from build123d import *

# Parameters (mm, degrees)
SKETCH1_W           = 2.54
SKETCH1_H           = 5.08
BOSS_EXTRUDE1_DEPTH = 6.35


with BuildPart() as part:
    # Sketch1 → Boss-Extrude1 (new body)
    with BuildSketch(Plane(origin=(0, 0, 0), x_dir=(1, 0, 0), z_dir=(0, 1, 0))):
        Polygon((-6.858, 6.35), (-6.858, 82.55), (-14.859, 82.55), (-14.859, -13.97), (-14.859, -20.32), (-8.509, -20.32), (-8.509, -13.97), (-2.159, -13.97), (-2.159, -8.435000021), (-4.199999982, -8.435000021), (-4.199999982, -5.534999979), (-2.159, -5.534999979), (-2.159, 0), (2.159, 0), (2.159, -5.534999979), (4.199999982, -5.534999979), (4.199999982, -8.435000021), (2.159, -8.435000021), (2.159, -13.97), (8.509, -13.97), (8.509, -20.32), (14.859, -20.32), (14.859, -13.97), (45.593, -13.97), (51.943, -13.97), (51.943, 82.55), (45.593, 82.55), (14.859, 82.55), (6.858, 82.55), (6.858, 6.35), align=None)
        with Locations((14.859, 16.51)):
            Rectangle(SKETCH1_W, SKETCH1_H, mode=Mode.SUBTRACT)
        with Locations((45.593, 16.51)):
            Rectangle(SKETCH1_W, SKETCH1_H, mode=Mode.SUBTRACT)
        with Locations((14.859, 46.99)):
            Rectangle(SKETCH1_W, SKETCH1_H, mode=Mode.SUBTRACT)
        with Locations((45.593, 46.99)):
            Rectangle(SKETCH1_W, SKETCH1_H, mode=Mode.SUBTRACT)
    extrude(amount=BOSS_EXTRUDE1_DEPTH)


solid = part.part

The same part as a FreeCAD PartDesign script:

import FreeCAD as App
import Part
import Sketcher
Q = App.Units.Quantity

doc = App.newDocument("Part")
params = doc.addObject("Spreadsheet::Sheet", "Params")
for row, (alias, value) in enumerate([
    ("sketch1_height", "3 in"),
    ("sketch1_width", "0.1 in"),
    ("sketch1_height2", "3.8 in"),
    ("sketch1_height3", "0.2 in"),
    ("sketch1_width2", "0.25 in"),
    ("pad1_length", "0.25 in"),
], start=1):
    params.set(f"A{row}", alias)
    params.set(f"B{row}", "=" + value)
    params.setAlias(f"B{row}", alias)

body = doc.addObject("PartDesign::Body", "Body")

# Sketch on XZ plane
sketch1 = body.newObject("Sketcher::SketchObject", "Sketch")
sketch1.AttachmentSupport = (doc.getObject("XZ_Plane"), [""])
sketch1.MapMode = "FlatFace"
sketch1.addGeometry([
    Part.LineSegment(App.Vector(-6.858, -6.35, 0), App.Vector(-6.858, -82.55, 0)),  # 0
    Part.LineSegment(App.Vector(-6.858, -82.55, 0), App.Vector(-14.859, -82.55, 0)),  # 1
    Part.LineSegment(App.Vector(-14.859, -82.55, 0), App.Vector(-14.859, 20.32, 0)),  # 2
    Part.LineSegment(App.Vector(-14.859, 20.32, 0), App.Vector(-8.509, 20.32, 0)),  # 3
    Part.LineSegment(App.Vector(-8.509, 20.32, 0), App.Vector(-8.509, 13.97, 0)),  # 4
    Part.LineSegment(App.Vector(-8.509, 13.97, 0), App.Vector(-2.159, 13.97, 0)),  # 5
    Part.LineSegment(App.Vector(-2.159, 13.97, 0), App.Vector(-2.159, 8.435, 0)),  # 6
    Part.LineSegment(App.Vector(-2.159, 8.435, 0), App.Vector(-4.2, 8.435, 0)),  # 7
    Part.LineSegment(App.Vector(-4.2, 8.435, 0), App.Vector(-4.2, 5.535, 0)),  # 8
    Part.LineSegment(App.Vector(-4.2, 5.535, 0), App.Vector(-2.159, 5.535, 0)),  # 9
    Part.LineSegment(App.Vector(-2.159, 5.535, 0), App.Vector(-2.159, 0, 0)),  # 10
    Part.LineSegment(App.Vector(-2.159, 0, 0), App.Vector(2.159, 0, 0)),  # 11
    Part.LineSegment(App.Vector(2.159, 0, 0), App.Vector(2.159, 5.535, 0)),  # 12
    Part.LineSegment(App.Vector(2.159, 5.535, 0), App.Vector(4.2, 5.535, 0)),  # 13
    Part.LineSegment(App.Vector(4.2, 5.535, 0), App.Vector(4.2, 8.435, 0)),  # 14
    Part.LineSegment(App.Vector(4.2, 8.435, 0), App.Vector(2.159, 8.435, 0)),  # 15
    Part.LineSegment(App.Vector(2.159, 8.435, 0), App.Vector(2.159, 13.97, 0)),  # 16
    Part.LineSegment(App.Vector(2.159, 13.97, 0), App.Vector(8.509, 13.97, 0)),  # 17
    Part.LineSegment(App.Vector(8.509, 13.97, 0), App.Vector(8.509, 20.32, 0)),  # 18
    Part.LineSegment(App.Vector(8.509, 20.32, 0), App.Vector(14.859, 20.32, 0)),  # 19
    Part.LineSegment(App.Vector(14.859, 20.32, 0), App.Vector(14.859, 13.97, 0)),  # 20
    Part.LineSegment(App.Vector(14.859, 13.97, 0), App.Vector(51.943, 13.97, 0)),  # 21
    Part.LineSegment(App.Vector(51.943, 13.97, 0), App.Vector(51.943, -82.55, 0)),  # 22
    Part.LineSegment(App.Vector(51.943, -82.55, 0), App.Vector(6.858, -82.55, 0)),  # 23
    Part.LineSegment(App.Vector(6.858, -82.55, 0), App.Vector(6.858, -6.35, 0)),  # 24
    Part.LineSegment(App.Vector(6.858, -6.35, 0), App.Vector(-6.858, -6.35, 0)),  # 25
    Part.LineSegment(App.Vector(16.129, -13.97, 0), App.Vector(13.589, -13.97, 0)),  # 26
    Part.LineSegment(App.Vector(13.589, -13.97, 0), App.Vector(13.589, -19.05, 0)),  # 27
    Part.LineSegment(App.Vector(13.589, -19.05, 0), App.Vector(16.129, -19.05, 0)),  # 28
    Part.LineSegment(App.Vector(16.129, -19.05, 0), App.Vector(16.129, -13.97, 0)),  # 29
    Part.LineSegment(App.Vector(46.863, -13.97, 0), App.Vector(44.323, -13.97, 0)),  # 30
    Part.LineSegment(App.Vector(44.323, -13.97, 0), App.Vector(44.323, -19.05, 0)),  # 31
    Part.LineSegment(App.Vector(44.323, -19.05, 0), App.Vector(46.863, -19.05, 0)),  # 32
    Part.LineSegment(App.Vector(46.863, -19.05, 0), App.Vector(46.863, -13.97, 0)),  # 33
    Part.LineSegment(App.Vector(16.129, -44.45, 0), App.Vector(13.589, -44.45, 0)),  # 34
    Part.LineSegment(App.Vector(13.589, -44.45, 0), App.Vector(13.589, -49.53, 0)),  # 35
    Part.LineSegment(App.Vector(13.589, -49.53, 0), App.Vector(16.129, -49.53, 0)),  # 36
    Part.LineSegment(App.Vector(16.129, -49.53, 0), App.Vector(16.129, -44.45, 0)),  # 37
    Part.LineSegment(App.Vector(46.863, -44.45, 0), App.Vector(44.323, -44.45, 0)),  # 38
    Part.LineSegment(App.Vector(44.323, -44.45, 0), App.Vector(44.323, -49.53, 0)),  # 39
    Part.LineSegment(App.Vector(44.323, -49.53, 0), App.Vector(46.863, -49.53, 0)),  # 40
    Part.LineSegment(App.Vector(46.863, -49.53, 0), App.Vector(46.863, -44.45, 0)),  # 41
], False)
sketch1.addConstraint([
    Sketcher.Constraint("Coincident", 0, 2, 1, 1),
    Sketcher.Constraint("Coincident", 1, 2, 2, 1),
    Sketcher.Constraint("Coincident", 2, 2, 3, 1),
    Sketcher.Constraint("Coincident", 3, 2, 4, 1),
    Sketcher.Constraint("Coincident", 4, 2, 5, 1),
    Sketcher.Constraint("Coincident", 5, 2, 6, 1),
    Sketcher.Constraint("Coincident", 6, 2, 7, 1),
    Sketcher.Constraint("Coincident", 7, 2, 8, 1),
    Sketcher.Constraint("Coincident", 8, 2, 9, 1),
    Sketcher.Constraint("Coincident", 9, 2, 10, 1),
    Sketcher.Constraint("Coincident", 10, 2, 11, 1),
    Sketcher.Constraint("Coincident", 11, 2, 12, 1),
    Sketcher.Constraint("Coincident", 12, 2, 13, 1),
    Sketcher.Constraint("Coincident", 13, 2, 14, 1),
    Sketcher.Constraint("Coincident", 14, 2, 15, 1),
    Sketcher.Constraint("Coincident", 15, 2, 16, 1),
    Sketcher.Constraint("Coincident", 16, 2, 17, 1),
    Sketcher.Constraint("Coincident", 17, 2, 18, 1),
    Sketcher.Constraint("Coincident", 18, 2, 19, 1),
    Sketcher.Constraint("Coincident", 19, 2, 20, 1),
    Sketcher.Constraint("Coincident", 20, 2, 21, 1),
    Sketcher.Constraint("Coincident", 21, 2, 22, 1),
    Sketcher.Constraint("Coincident", 22, 2, 23, 1),
    Sketcher.Constraint("Coincident", 23, 2, 24, 1),
    Sketcher.Constraint("Coincident", 24, 2, 25, 1),
    Sketcher.Constraint("Coincident", 25, 2, 0, 1),
    Sketcher.Constraint("Coincident", 26, 2, 27, 1),
    Sketcher.Constraint("Coincident", 27, 2, 28, 1),
    Sketcher.Constraint("Coincident", 28, 2, 29, 1),
    Sketcher.Constraint("Coincident", 29, 2, 26, 1),
    Sketcher.Constraint("Coincident", 30, 2, 31, 1),
    Sketcher.Constraint("Coincident", 31, 2, 32, 1),
    Sketcher.Constraint("Coincident", 32, 2, 33, 1),
    Sketcher.Constraint("Coincident", 33, 2, 30, 1),
    Sketcher.Constraint("Coincident", 34, 2, 35, 1),
    Sketcher.Constraint("Coincident", 35, 2, 36, 1),
    Sketcher.Constraint("Coincident", 36, 2, 37, 1),
    Sketcher.Constraint("Coincident", 37, 2, 34, 1),
    Sketcher.Constraint("Coincident", 38, 2, 39, 1),
    Sketcher.Constraint("Coincident", 39, 2, 40, 1),
    Sketcher.Constraint("Coincident", 40, 2, 41, 1),
    Sketcher.Constraint("Coincident", 41, 2, 38, 1),
    Sketcher.Constraint("Vertical", 0),
    Sketcher.Constraint("Horizontal", 1),
    Sketcher.Constraint("Vertical", 2),
    Sketcher.Constraint("Horizontal", 3),
    Sketcher.Constraint("Vertical", 4),
    Sketcher.Constraint("Horizontal", 5),
    Sketcher.Constraint("Vertical", 6),
    Sketcher.Constraint("Horizontal", 7),
    Sketcher.Constraint("Vertical", 8),
    Sketcher.Constraint("Horizontal", 9),
    Sketcher.Constraint("Vertical", 10),
    Sketcher.Constraint("Horizontal", 11),
    Sketcher.Constraint("Vertical", 12),
    Sketcher.Constraint("Horizontal", 13),
    Sketcher.Constraint("Vertical", 14),
    Sketcher.Constraint("Horizontal", 15),
    Sketcher.Constraint("Vertical", 16),
    Sketcher.Constraint("Horizontal", 17),
    Sketcher.Constraint("Vertical", 18),
    Sketcher.Constraint("Horizontal", 19),
    Sketcher.Constraint("Vertical", 20),
    Sketcher.Constraint("Horizontal", 21),
    Sketcher.Constraint("Vertical", 22),
    Sketcher.Constraint("Horizontal", 23),
    Sketcher.Constraint("Vertical", 24),
    Sketcher.Constraint("Horizontal", 25),
    Sketcher.Constraint("Horizontal", 26),
    Sketcher.Constraint("Vertical", 27),
    Sketcher.Constraint("Horizontal", 28),
    Sketcher.Constraint("Vertical", 29),
    Sketcher.Constraint("Horizontal", 30),
    Sketcher.Constraint("Vertical", 31),
    Sketcher.Constraint("Horizontal", 32),
    Sketcher.Constraint("Vertical", 33),
    Sketcher.Constraint("Horizontal", 34),
    Sketcher.Constraint("Vertical", 35),
    Sketcher.Constraint("Horizontal", 36),
    Sketcher.Constraint("Vertical", 37),
    Sketcher.Constraint("Horizontal", 38),
    Sketcher.Constraint("Vertical", 39),
    Sketcher.Constraint("Horizontal", 40),
    Sketcher.Constraint("Vertical", 41),
    Sketcher.Constraint("Symmetric", 10, 2, 11, 2, -1, 1),
    Sketcher.Constraint("Symmetric", 8, 2, 13, 2, -2),
    Sketcher.Constraint("Symmetric", 6, 2, 15, 2, -2),
    Sketcher.Constraint("Symmetric", 4, 2, 17, 2, -2),
    Sketcher.Constraint("Symmetric", 2, 2, 19, 2, -2),
    Sketcher.Constraint("Symmetric", 0, 2, 23, 2, -2),
    Sketcher.Constraint("Horizontal", 17, 2, 20, 2),
    Sketcher.Constraint("Horizontal", 29, 2, 30, 2),
    Sketcher.Constraint("Horizontal", 28, 2, 31, 2),
    Sketcher.Constraint("Horizontal", 37, 2, 38, 2),
    Sketcher.Constraint("Horizontal", 36, 2, 39, 2),
    Sketcher.Constraint("Vertical", 6, 2, 9, 2),
    Sketcher.Constraint("Vertical", 27, 2, 34, 2),
    Sketcher.Constraint("Vertical", 29, 2, 36, 2),
    Sketcher.Constraint("Vertical", 31, 2, 38, 2),
    Sketcher.Constraint("Vertical", 33, 2, 40, 2),
    Sketcher.Constraint("Equal", 3, 5),
    Sketcher.Constraint("Equal", 28, 30),
    Sketcher.Constraint("Equal", 19, 4),
    Sketcher.Constraint("Equal", 6, 10),
    Sketcher.Constraint("Equal", 33, 35),
    Sketcher.Constraint("DistanceY", 0, 2, 0, 1, Q("3 in")),
    Sketcher.Constraint("DistanceX", 26, 2, 26, 1, Q("0.1 in")),
    Sketcher.Constraint("DistanceY", 22, 2, 22, 1, Q("3.8 in")),
    Sketcher.Constraint("DistanceY", 27, 2, 27, 1, Q("0.2 in")),
    Sketcher.Constraint("DistanceY", 34, 2, 27, 2, Q("1 in")),
    Sketcher.Constraint("DistanceX", 3, 1, 3, 2, Q("0.25 in")),
    Sketcher.Constraint("DistanceX", 11, 1, 11, 2, Q("0.17 in")),
    Sketcher.Constraint("DistanceX", 21, 1, 21, 2, Q("1.46 in")),
    Sketcher.Constraint("DistanceX", 25, 2, 25, 1, Q("0.54 in")),
    Sketcher.Constraint("DistanceY", -1, 1, 2, 2, Q("0.8 in")),
    Sketcher.Constraint("DistanceY", 26, 2, 24, 2, Q("0.3 in")),
    Sketcher.Constraint("DistanceX", 30, 2, 21, 2, Q("0.3 in")),
    Sketcher.Constraint("DistanceX", 11, 2, 26, 2, Q("0.45 in")),
    Sketcher.Constraint("DistanceX", 7, 2, 7, 1, 2.041),
    Sketcher.Constraint("DistanceY", 6, 2, 6, 1, 5.535),
])
sketch1.setExpression("Constraints[105]", "Params.sketch1_height")
sketch1.setExpression("Constraints[106]", "Params.sketch1_width")
sketch1.setExpression("Constraints[107]", "Params.sketch1_height2")
sketch1.setExpression("Constraints[108]", "Params.sketch1_height3")
sketch1.setExpression("Constraints[110]", "Params.sketch1_width2")
pad1 = body.newObject("PartDesign::Pad", "Pad")
pad1.Profile = sketch1
pad1.setExpression("Length", "Params.pad1_length")
pad1.Reversed = True

doc.recompute()
